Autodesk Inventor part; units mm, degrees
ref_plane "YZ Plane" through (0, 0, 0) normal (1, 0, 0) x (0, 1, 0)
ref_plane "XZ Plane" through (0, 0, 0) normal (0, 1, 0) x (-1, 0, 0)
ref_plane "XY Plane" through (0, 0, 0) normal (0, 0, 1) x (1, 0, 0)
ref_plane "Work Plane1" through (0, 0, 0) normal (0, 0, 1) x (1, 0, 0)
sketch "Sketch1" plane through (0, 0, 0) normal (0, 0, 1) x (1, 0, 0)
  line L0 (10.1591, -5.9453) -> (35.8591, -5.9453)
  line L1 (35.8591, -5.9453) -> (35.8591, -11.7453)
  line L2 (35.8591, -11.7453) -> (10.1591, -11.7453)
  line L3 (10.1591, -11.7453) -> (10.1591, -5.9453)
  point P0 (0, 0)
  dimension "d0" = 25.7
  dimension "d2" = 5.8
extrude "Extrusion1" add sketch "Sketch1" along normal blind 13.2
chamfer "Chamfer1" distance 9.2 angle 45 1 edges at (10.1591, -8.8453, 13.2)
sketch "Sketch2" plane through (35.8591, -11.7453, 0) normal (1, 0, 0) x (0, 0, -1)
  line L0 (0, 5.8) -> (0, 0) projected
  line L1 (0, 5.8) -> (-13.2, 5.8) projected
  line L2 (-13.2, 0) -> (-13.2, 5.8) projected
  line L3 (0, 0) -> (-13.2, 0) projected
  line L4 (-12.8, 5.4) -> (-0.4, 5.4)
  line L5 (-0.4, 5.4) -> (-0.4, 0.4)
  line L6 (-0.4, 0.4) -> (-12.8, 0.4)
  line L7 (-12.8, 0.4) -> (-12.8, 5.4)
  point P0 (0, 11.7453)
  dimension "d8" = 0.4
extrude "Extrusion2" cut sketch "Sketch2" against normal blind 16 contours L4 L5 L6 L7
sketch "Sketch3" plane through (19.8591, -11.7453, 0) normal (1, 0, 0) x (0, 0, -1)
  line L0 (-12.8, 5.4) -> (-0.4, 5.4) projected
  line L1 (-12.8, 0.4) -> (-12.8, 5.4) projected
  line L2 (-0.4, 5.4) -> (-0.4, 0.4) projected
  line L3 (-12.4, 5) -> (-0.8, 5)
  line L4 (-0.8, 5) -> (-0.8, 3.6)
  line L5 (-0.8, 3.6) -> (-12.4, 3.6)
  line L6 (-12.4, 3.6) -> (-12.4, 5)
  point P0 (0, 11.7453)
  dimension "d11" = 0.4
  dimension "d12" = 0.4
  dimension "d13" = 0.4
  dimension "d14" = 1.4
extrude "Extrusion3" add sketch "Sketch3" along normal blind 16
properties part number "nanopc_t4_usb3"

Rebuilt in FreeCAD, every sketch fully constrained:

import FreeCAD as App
import Part
import Sketcher
Q = App.Units.Quantity


def edges_at(feature, points):
    """Names of the edges that pass closest to the given points."""
    edges = feature.Shape.Edges
    near = lambda p: min(range(len(edges)), key=lambda i: edges[i].distToShape(Part.Vertex(*p))[0])
    return sorted({f"Edge{near(p) + 1}" for p in points})

doc = App.newDocument("Part")
body = doc.addObject("PartDesign::Body", "Body")

sketch1 = body.newObject("Sketcher::SketchObject", "Sketch")
sketch1.AttachmentSupport = (doc.getObject("XY_Plane"), [""])
sketch1.MapMode = "FlatFace"
sketch1.addGeometry([
    Part.LineSegment(App.Vector(35.8591, -5.9453, 0), App.Vector(10.1591, -5.9453, 0)),
    Part.LineSegment(App.Vector(10.1591, -5.9453, 0), App.Vector(10.1591, -11.7453, 0)),
    Part.LineSegment(App.Vector(10.1591, -11.7453, 0), App.Vector(35.8591, -11.7453, 0)),
    Part.LineSegment(App.Vector(35.8591, -11.7453, 0), App.Vector(35.8591, -5.9453, 0)),
], False)
sketch1.addConstraint([
    Sketcher.Constraint("Coincident", 0, 2, 1, 1),
    Sketcher.Constraint("Coincident", 1, 2, 2, 1),
    Sketcher.Constraint("Coincident", 2, 2, 3, 1),
    Sketcher.Constraint("Coincident", 3, 2, 0, 1),
    Sketcher.Constraint("Horizontal", 0),
    Sketcher.Constraint("Vertical", 1),
    Sketcher.Constraint("Horizontal", 2),
    Sketcher.Constraint("Vertical", 3),
    Sketcher.Constraint("DistanceX", 0, 2, 0, 1, Q("25.7 mm")),
    Sketcher.Constraint("DistanceY", 1, 2, 1, 1, Q("5.8 mm")),
    Sketcher.Constraint("DistanceX", -1, 1, 0, 2, Q("10.159 mm")),
    Sketcher.Constraint("DistanceY", 0, 2, -1, 1, Q("5.9453 mm")),
])
pad1 = body.newObject("PartDesign::Pad", "Pad")
pad1.Profile = sketch1
pad1.Length = 13.2
doc.recompute()

chamfer = body.newObject("PartDesign::Chamfer", "Chamfer")
chamfer.Base = (pad1, edges_at(pad1, [(10.159, -8.845, 13.2)]))
chamfer.Size = 9.2

sketch2 = body.newObject("Sketcher::SketchObject", "Sketch001")
sketch2.AttachmentSupport = (doc.getObject("YZ_Plane"), [""])
sketch2.MapMode = "FlatFace"
sketch2.AttachmentOffset = App.Placement(App.Vector(0, 0, 35.8591), App.Rotation())
sketch2.addGeometry([
    Part.LineSegment(App.Vector(-6.3453, 0.4, 0), App.Vector(-6.3453, 12.8, 0)),
    Part.LineSegment(App.Vector(-6.3453, 12.8, 0), App.Vector(-11.3453, 12.8, 0)),
    Part.LineSegment(App.Vector(-11.3453, 12.8, 0), App.Vector(-11.3453, 0.4, 0)),
    Part.LineSegment(App.Vector(-11.3453, 0.4, 0), App.Vector(-6.3453, 0.4, 0)),
], False)
sketch2.addConstraint([
    Sketcher.Constraint("Coincident", 0, 2, 1, 1),
    Sketcher.Constraint("Coincident", 1, 2, 2, 1),
    Sketcher.Constraint("Coincident", 2, 2, 3, 1),
    Sketcher.Constraint("Coincident", 3, 2, 0, 1),
    Sketcher.Constraint("Vertical", 0),
    Sketcher.Constraint("Horizontal", 1),
    Sketcher.Constraint("Vertical", 2),
    Sketcher.Constraint("Horizontal", 3),
    Sketcher.Constraint("DistanceY", -1, 1, 2, 2, Q("0.4 mm")),
    Sketcher.Constraint("DistanceX", 1, 2, 1, 1, Q("5 mm")),
    Sketcher.Constraint("DistanceY", 0, 1, 0, 2, Q("12.4 mm")),
    Sketcher.Constraint("DistanceX", 0, 2, -1, 1, Q("6.3453 mm")),
])
pocket1 = body.newObject("PartDesign::Pocket", "Pocket")
pocket1.Profile = sketch2
pocket1.Length = 16

sketch3 = body.newObject("Sketcher::SketchObject", "Sketch002")
sketch3.AttachmentSupport = (doc.getObject("YZ_Plane"), [""])
sketch3.MapMode = "FlatFace"
sketch3.AttachmentOffset = App.Placement(App.Vector(0, 0, 19.8591), App.Rotation())
sketch3.addGeometry([
    Part.LineSegment(App.Vector(-6.7453, 0.8, 0), App.Vector(-6.7453, 12.4, 0)),
    Part.LineSegment(App.Vector(-6.7453, 12.4, 0), App.Vector(-8.1453, 12.4, 0)),
    Part.LineSegment(App.Vector(-8.1453, 12.4, 0), App.Vector(-8.1453, 0.8, 0)),
    Part.LineSegment(App.Vector(-8.1453, 0.8, 0), App.Vector(-6.7453, 0.8, 0)),
], False)
sketch3.addConstraint([
    Sketcher.Constraint("Coincident", 0, 2, 1, 1),
    Sketcher.Constraint("Coincident", 1, 2, 2, 1),
    Sketcher.Constraint("Coincident", 2, 2, 3, 1),
    Sketcher.Constraint("Coincident", 3, 2, 0, 1),
    Sketcher.Constraint("Vertical", 0),
    Sketcher.Constraint("Horizontal", 1),
    Sketcher.Constraint("Vertical", 2),
    Sketcher.Constraint("Horizontal", 3),
    Sketcher.Constraint("DistanceX", 1, 2, 1, 1, Q("1.4 mm")),
    Sketcher.Constraint("DistanceY", 0, 1, 0, 2, Q("11.6 mm")),
    Sketcher.Constraint("DistanceY", -1, 1, 0, 2, Q("12.4 mm")),
    Sketcher.Constraint("DistanceX", 0, 2, -1, 1, Q("6.7453 mm")),
])
pad2 = body.newObject("PartDesign::Pad", "Pad001")
pad2.Profile = sketch3
pad2.Length = 16

doc.recompute()
